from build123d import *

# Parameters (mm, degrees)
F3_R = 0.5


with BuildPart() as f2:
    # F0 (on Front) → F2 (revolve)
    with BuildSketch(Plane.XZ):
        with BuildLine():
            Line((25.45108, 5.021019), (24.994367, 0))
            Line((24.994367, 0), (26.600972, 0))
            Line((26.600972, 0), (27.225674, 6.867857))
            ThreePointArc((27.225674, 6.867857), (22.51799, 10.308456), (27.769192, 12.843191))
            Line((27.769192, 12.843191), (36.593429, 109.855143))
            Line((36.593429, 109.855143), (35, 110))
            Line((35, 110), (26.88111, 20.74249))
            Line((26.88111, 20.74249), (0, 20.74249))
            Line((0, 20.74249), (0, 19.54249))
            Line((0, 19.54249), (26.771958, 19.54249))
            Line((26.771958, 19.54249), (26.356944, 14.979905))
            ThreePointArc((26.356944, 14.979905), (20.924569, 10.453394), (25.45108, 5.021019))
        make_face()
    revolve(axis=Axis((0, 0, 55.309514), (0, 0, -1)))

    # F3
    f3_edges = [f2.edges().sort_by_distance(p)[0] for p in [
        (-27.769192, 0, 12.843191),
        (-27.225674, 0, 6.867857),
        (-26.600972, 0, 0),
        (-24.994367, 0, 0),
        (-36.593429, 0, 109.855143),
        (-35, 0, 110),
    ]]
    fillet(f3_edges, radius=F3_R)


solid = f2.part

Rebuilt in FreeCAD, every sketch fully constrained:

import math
import FreeCAD as App
import Part
import Sketcher
from FreeCAD import Vector
Q = App.Units.Quantity


def edges_at(feature, points):
    """Names of the edges that pass closest to the given points."""
    edges = feature.Shape.Edges
    near = lambda p: min(range(len(edges)), key=lambda i: edges[i].distToShape(Part.Vertex(*p))[0])
    return sorted({f"Edge{near(p) + 1}" for p in points})

doc = App.newDocument("Part")
body = doc.addObject("PartDesign::Body", "Body")

# Sketch on XZ plane
sketch1 = doc.addObject("Sketcher::SketchObject", "Sketch")
body.addObject(sketch1)
sketch1.AttachmentSupport = (doc.XZ_Plane, [""])
sketch1.MapMode = "FlatFace"
sketch1.addGeometry(Part.LineSegment(Vector(25.5, 5, 0), Vector(25, 0, 0)), False)
sketch1.addGeometry(Part.LineSegment(Vector(25, 0, 0), Vector(26.6, 0, 0)), False)
sketch1.addGeometry(Part.LineSegment(Vector(26.6, 0, 0), Vector(27.2, 6.9, 0)), False)
sketch1.addGeometry(Part.ArcOfCircle(Part.Circle(Vector(25.9, 10, 0), Vector(0, 0, 1), 3.4), math.radians(57), math.radians(293)), False)
sketch1.addGeometry(Part.LineSegment(Vector(27.8, 12.8, 0), Vector(36.6, 109.9, 0)), False)
sketch1.addGeometry(Part.LineSegment(Vector(36.6, 109.9, 0), Vector(35, 110, 0)), False)
sketch1.addGeometry(Part.LineSegment(Vector(35, 110, 0), Vector(26.9, 20.7, 0)), False)
sketch1.addGeometry(Part.LineSegment(Vector(26.9, 20.7, 0), Vector(0, 20.7, 0)), False)
sketch1.addGeometry(Part.LineSegment(Vector(0, 20.7, 0), Vector(0, 19.5, 0)), False)
sketch1.addGeometry(Part.LineSegment(Vector(0, 19.5, 0), Vector(26.8, 19.5, 0)), False)
sketch1.addGeometry(Part.LineSegment(Vector(26.8, 19.5, 0), Vector(26.4, 15, 0)), False)
sketch1.addGeometry(Part.ArcOfCircle(Part.Circle(Vector(25.9, 10, 0), Vector(0, 0, 1), 5), math.radians(85), math.radians(265)), False)
sketch1.addConstraint(Sketcher.Constraint("Coincident", 0, 2, 1, 1))
sketch1.addConstraint(Sketcher.Constraint("Coincident", 1, 2, 2, 1))
sketch1.addConstraint(Sketcher.Constraint("Coincident", 2, 2, 3, 2))
sketch1.addConstraint(Sketcher.Constraint("Coincident", 3, 1, 4, 1))
sketch1.addConstraint(Sketcher.Constraint("Coincident", 4, 2, 5, 1))
sketch1.addConstraint(Sketcher.Constraint("Coincident", 5, 2, 6, 1))
sketch1.addConstraint(Sketcher.Constraint("Coincident", 6, 2, 7, 1))
sketch1.addConstraint(Sketcher.Constraint("Coincident", 7, 2, 8, 1))
sketch1.addConstraint(Sketcher.Constraint("Coincident", 8, 2, 9, 1))
sketch1.addConstraint(Sketcher.Constraint("Coincident", 9, 2, 10, 1))
sketch1.addConstraint(Sketcher.Constraint("Coincident", 10, 2, 11, 1))
sketch1.addConstraint(Sketcher.Constraint("Coincident", 11, 2, 0, 1))
sketch1.addConstraint(Sketcher.Constraint("Horizontal", 1))
sketch1.addConstraint(Sketcher.Constraint("Horizontal", 7))
sketch1.addConstraint(Sketcher.Constraint("Vertical", 8))
sketch1.addConstraint(Sketcher.Constraint("Horizontal", 9))
sketch1.addConstraint(Sketcher.Constraint("Coincident", 11, 3, 3, 3))
sketch1.addConstraint(Sketcher.Constraint("PointOnObject", 0, 2, -1))
sketch1.addConstraint(Sketcher.Constraint("PointOnObject", 7, 2, -2))
sketch1.addConstraint(Sketcher.Constraint("Parallel", 0, 2))
sketch1.addConstraint(Sketcher.Constraint("Parallel", 2, 4))
sketch1.addConstraint(Sketcher.Constraint("Parallel", 4, 6))
sketch1.addConstraint(Sketcher.Constraint("Parallel", 6, 10))
sketch1.addConstraint(Sketcher.Constraint("Radius", 11, Q("5 mm")))
sketch1.addConstraint(Sketcher.Constraint("Radius", 3, Q("3.400001 mm")))
sketch1.addConstraint(Sketcher.Constraint("DistanceY", 8, 2, 8, 1, Q("1.2 mm")))
sketch1.addConstraint(Sketcher.Constraint("DistanceX", -1, 1, 5, 2, Q("35 mm")))
sketch1.addConstraint(Sketcher.Constraint("DistanceY", -1, 1, 5, 2, Q("110 mm")))
sketch1.addConstraint(Sketcher.Constraint("Distance", 5, Q("1.6 mm")))
sketch1.addConstraint(Sketcher.Constraint("DistanceX", 7, 2, 7, 1, Q("26.88111 mm")))
sketch1.addConstraint(Sketcher.Constraint("DistanceX", 9, 1, 9, 2, Q("26.771958 mm")))
sketch1.addConstraint(Sketcher.Constraint("DistanceY", 3, 1, 6, 2, Q("7.899299 mm")))
sketch1.addConstraint(Sketcher.Constraint("DistanceX", 3, 3, 6, 2, Q("0.977098 mm")))
sketch1.addConstraint(Sketcher.Constraint("Distance", 2, Q("6.89621 mm")))
sketch1.addConstraint(Sketcher.Constraint("DistanceX", 1, 1, 1, 2, Q("1.606605 mm")))
sketch1.addConstraint(Sketcher.Constraint("DistanceX", -1, 1, 1, 2, Q("26.600972 mm")))
sketch1.addConstraint(Sketcher.Constraint("DistanceX", -1, 1, 4, 2, Q("36.593429 mm")))
revolution = doc.addObject("PartDesign::Revolution", "Revolution")
body.addObject(revolution)
revolution.Profile = sketch1
revolution.ReferenceAxis = (sketch1, ["V_Axis"])
revolution.Angle = 360
doc.recompute()

fillet = doc.addObject("PartDesign::Fillet", "Fillet")
body.addObject(fillet)
fillet.Base = (revolution, edges_at(revolution, [
    (-27.769, 0, 12.843),
    (-27.226, 0, 6.868),
    (-26.601, 0, 0),
    (-24.994, 0, 0),
    (-36.593, 0, 109.855),
    (-35, 0, 110),
]))
fillet.Radius = 0.5

doc.recompute()
